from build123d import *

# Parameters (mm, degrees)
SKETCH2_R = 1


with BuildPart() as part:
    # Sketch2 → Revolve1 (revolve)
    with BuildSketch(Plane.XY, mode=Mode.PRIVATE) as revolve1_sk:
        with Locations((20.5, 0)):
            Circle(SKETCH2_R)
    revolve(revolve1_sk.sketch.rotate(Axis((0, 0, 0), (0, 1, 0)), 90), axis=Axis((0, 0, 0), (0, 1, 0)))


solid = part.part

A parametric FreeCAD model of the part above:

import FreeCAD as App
import Part
import Sketcher

V = App.Vector

doc = App.newDocument("Part")
body = doc.addObject("PartDesign::Body", "Body")

sketch1 = body.newObject("Sketcher::SketchObject", "Sketch")
sketch1.AttachmentSupport = (doc.getObject("XY_Plane"), [""])
sketch1.MapMode = "FlatFace"
sketch1.addGeometry(Part.Circle(V(20.5, 0, 0), V(0, 0, 1), 1), False)
sketch1.addConstraint([
    Sketcher.Constraint("PointOnObject", 0, 3, -1),
    Sketcher.Constraint("Diameter", 0, 2.0),
    Sketcher.Constraint("DistanceX", -1, 1, 0, 3, 20.5),
])
revolution = body.newObject("PartDesign::Revolution", "Revolution")
revolution.Profile = sketch1
revolution.ReferenceAxis = (sketch1, ["V_Axis"])
revolution.Angle = 360

doc.recompute()
